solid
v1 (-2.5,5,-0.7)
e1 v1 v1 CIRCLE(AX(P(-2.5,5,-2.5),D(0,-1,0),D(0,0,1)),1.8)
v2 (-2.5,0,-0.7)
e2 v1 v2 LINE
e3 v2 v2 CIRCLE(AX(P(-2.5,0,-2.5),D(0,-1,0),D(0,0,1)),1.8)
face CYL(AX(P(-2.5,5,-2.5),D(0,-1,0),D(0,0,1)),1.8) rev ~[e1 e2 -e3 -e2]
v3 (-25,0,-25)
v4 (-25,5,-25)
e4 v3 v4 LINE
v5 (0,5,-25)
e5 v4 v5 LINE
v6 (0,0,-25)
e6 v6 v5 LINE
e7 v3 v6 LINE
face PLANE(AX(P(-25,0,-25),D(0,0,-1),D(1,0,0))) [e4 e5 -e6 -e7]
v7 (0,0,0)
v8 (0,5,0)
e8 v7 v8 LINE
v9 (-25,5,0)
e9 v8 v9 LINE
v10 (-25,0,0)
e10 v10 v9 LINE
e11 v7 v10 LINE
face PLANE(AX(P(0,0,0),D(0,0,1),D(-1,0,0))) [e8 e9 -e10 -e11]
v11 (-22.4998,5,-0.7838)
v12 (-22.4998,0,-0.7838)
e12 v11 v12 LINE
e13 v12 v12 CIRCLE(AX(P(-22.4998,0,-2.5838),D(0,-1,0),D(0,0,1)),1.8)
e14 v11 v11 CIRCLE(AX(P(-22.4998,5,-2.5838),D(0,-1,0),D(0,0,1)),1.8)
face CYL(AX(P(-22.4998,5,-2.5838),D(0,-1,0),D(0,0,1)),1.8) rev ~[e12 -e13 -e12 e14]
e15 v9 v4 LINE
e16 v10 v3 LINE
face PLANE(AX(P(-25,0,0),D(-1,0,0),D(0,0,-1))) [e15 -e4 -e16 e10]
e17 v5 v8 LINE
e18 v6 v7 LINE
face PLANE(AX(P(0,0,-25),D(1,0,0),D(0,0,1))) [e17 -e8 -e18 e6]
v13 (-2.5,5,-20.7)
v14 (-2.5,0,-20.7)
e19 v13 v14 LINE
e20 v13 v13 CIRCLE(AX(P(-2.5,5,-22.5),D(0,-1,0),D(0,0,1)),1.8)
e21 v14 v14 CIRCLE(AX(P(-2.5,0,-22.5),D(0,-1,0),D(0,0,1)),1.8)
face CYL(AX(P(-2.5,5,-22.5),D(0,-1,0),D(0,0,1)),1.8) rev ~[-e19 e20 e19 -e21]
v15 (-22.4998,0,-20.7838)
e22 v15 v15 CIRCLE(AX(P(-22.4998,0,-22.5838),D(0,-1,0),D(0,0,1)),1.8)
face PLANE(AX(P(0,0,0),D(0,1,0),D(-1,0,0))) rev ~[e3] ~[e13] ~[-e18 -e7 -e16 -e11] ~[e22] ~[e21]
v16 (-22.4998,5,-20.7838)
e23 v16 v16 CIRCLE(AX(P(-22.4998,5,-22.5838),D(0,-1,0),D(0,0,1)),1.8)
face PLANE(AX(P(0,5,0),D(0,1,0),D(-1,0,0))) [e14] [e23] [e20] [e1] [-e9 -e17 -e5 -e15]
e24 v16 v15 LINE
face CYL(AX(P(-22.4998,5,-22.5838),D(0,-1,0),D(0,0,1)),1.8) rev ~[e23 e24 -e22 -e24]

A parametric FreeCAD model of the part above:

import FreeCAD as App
import Part
import Sketcher
Q = App.Units.Quantity


def add_polygon(sketch, points):
    """Adds a closed chain of lines whose ends are joined by coincident constraints."""
    first, n = sketch.GeometryCount, len(points)
    for a, b in zip(points, points[1:] + points[:1]):
        sketch.addGeometry(Part.LineSegment(App.Vector(*a, 0), App.Vector(*b, 0)), False)
    for i in range(n):
        sketch.addConstraint(Sketcher.Constraint("Coincident", first + i, 2, first + (i + 1) % n, 1))

doc = App.newDocument("Part")
body = doc.addObject("PartDesign::Body", "Body")

sketch1 = body.newObject("Sketcher::SketchObject", "Sketch")
sketch1.AttachmentSupport = (doc.getObject("XZ_Plane"), [""])
sketch1.MapMode = "FlatFace"
add_polygon(sketch1, [(-25, 0), (0, 0), (0, -25), (-25, -25)])
sketch1.addConstraint([
    Sketcher.Constraint("Horizontal", 0),
    Sketcher.Constraint("Vertical", 1),
    Sketcher.Constraint("Horizontal", 2),
    Sketcher.Constraint("Vertical", 3),
    Sketcher.Constraint("Coincident", 0, 2, -1, 1),
    Sketcher.Constraint("Equal", 2, 1),
    Sketcher.Constraint("DistanceX", 0, 1, 0, 2, Q("25 mm")),
])
pad1 = body.newObject("PartDesign::Pad", "Pad")
pad1.Profile = sketch1
pad1.Length = 5
pad1.Reversed = True

sketch2 = body.newObject("Sketcher::SketchObject", "Sketch001")
sketch2.AttachmentSupport = (doc.getObject("XZ_Plane"), [""])
sketch2.MapMode = "FlatFace"
sketch2.AttachmentOffset = App.Placement(App.Vector(0, 0, -5), App.Rotation())
sketch2.addGeometry([
    Part.Circle(App.Vector(-2.5, -2.5, 0), App.Vector(0, 0, 1), 1.8),
    Part.Circle(App.Vector(-2.5, -22.5, 0), App.Vector(0, 0, 1), 1.8),
    Part.Circle(App.Vector(-22.5, -22.6, 0), App.Vector(0, 0, 1), 1.8),
    Part.Circle(App.Vector(-22.5, -2.6, 0), App.Vector(0, 0, 1), 1.8),
], False)
sketch2.addConstraint([
    Sketcher.Constraint("Equal", 0, 1),
    Sketcher.Constraint("Equal", 1, 2),
    Sketcher.Constraint("Equal", 2, 3),
    Sketcher.Constraint("Vertical", 0, 3, 1, 3),
    Sketcher.Constraint("Vertical", 2, 3, 3, 3),
    Sketcher.Constraint("Diameter", 0, Q("3.6 mm")),
    Sketcher.Constraint("DistanceY", 1, 3, 0, 3, Q("20 mm")),
    Sketcher.Constraint("DistanceY", 2, 3, 3, 3, Q("20 mm")),
    Sketcher.Constraint("DistanceX", 0, 3, -1, 1, Q("2.5 mm")),
    Sketcher.Constraint("DistanceY", 0, 3, -1, 1, Q("2.5 mm")),
    Sketcher.Constraint("DistanceX", 2, 3, -1, 1, Q("22.4998 mm")),
    Sketcher.Constraint("DistanceY", 2, 3, -1, 1, Q("22.5838 mm")),
])
doc.recompute()
hole = body.newObject("PartDesign::Hole", "Hole")
hole.Profile = sketch2
hole.ThreadType = "None"
hole.Diameter = 3.6
hole.DepthType = "ThroughAll"
hole.Reversed = True

doc.recompute()
